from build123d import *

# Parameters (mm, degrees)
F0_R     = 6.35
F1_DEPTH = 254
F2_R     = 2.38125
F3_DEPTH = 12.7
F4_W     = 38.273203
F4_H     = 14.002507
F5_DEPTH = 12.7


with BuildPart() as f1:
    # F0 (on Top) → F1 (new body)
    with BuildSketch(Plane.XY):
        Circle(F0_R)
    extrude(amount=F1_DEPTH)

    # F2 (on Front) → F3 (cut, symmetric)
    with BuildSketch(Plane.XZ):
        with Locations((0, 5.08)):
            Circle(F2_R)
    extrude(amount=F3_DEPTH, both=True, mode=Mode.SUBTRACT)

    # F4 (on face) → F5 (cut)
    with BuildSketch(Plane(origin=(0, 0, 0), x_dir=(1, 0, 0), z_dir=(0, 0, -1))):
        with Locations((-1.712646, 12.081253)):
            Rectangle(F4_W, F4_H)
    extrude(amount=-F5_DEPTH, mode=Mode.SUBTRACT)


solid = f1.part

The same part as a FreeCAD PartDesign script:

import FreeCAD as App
import Part
import Sketcher

V = App.Vector
Q = App.Units.Quantity


def add_polygon(sketch, points):
    """Adds a closed chain of lines whose ends are joined by coincident constraints."""
    first, n = sketch.GeometryCount, len(points)
    for a, b in zip(points, points[1:] + points[:1]):
        sketch.addGeometry(Part.LineSegment(App.Vector(*a, 0), App.Vector(*b, 0)), False)
    for i in range(n):
        sketch.addConstraint(Sketcher.Constraint("Coincident", first + i, 2, first + (i + 1) % n, 1))

doc = App.newDocument("Part")
body = doc.addObject("PartDesign::Body", "Body")

sketch1 = body.newObject("Sketcher::SketchObject", "Sketch")
sketch1.AttachmentSupport = (doc.getObject("XY_Plane"), [""])
sketch1.MapMode = "FlatFace"
sketch1.addGeometry(Part.Circle(V(0, 0, 0), V(0, 0, 1), 6), False)
sketch1.addConstraint([
    Sketcher.Constraint("Coincident", 0, 3, -1, 1),
    Sketcher.Constraint("Diameter", 0, Q("0.5 in")),
])
pad1 = body.newObject("PartDesign::Pad", "Pad")
pad1.Profile = sketch1
pad1.Length = Q("10 in")

sketch2 = body.newObject("Sketcher::SketchObject", "Sketch001")
sketch2.AttachmentSupport = (doc.getObject("XZ_Plane"), [""])
sketch2.MapMode = "FlatFace"
sketch2.addGeometry(Part.Circle(V(0, 5.1, 0), V(0, 0, 1), 2.4), False)
sketch2.addConstraint([
    Sketcher.Constraint("PointOnObject", 0, 3, -2),
    Sketcher.Constraint("Diameter", 0, Q("0.1875 in")),
    Sketcher.Constraint("DistanceY", -1, 1, 0, 3, Q("0.2 in")),
])
pocket1 = body.newObject("PartDesign::Pocket", "Pocket")
pocket1.Profile = sketch2
pocket1.Length = Q("1 in")
pocket1.Midplane = True

sketch3 = body.newObject("Sketcher::SketchObject", "Sketch002")
sketch3.AttachmentSupport = (doc.getObject("XY_Plane"), [""])
sketch3.MapMode = "FlatFace"
add_polygon(sketch3, [(-21, -19), (-21, -5), (17, -5), (17, -19)])
sketch3.addConstraint([
    Sketcher.Constraint("Vertical", 0),
    Sketcher.Constraint("Horizontal", 1),
    Sketcher.Constraint("Vertical", 2),
    Sketcher.Constraint("Horizontal", 3),
    Sketcher.Constraint("DistanceY", 0, 2, -1, 1, Q("0.2 in")),
    Sketcher.Constraint("DistanceX", 1, 1, 1, 2, 38.273203),
    Sketcher.Constraint("DistanceY", 0, 1, 0, 2, 14.002507),
    Sketcher.Constraint("DistanceX", 0, 2, -1, 1, 20.849248),
])
pocket2 = body.newObject("PartDesign::Pocket", "Pocket001")
pocket2.Profile = sketch3
pocket2.Length = Q("0.5 in")
pocket2.Reversed = True

doc.recompute()
